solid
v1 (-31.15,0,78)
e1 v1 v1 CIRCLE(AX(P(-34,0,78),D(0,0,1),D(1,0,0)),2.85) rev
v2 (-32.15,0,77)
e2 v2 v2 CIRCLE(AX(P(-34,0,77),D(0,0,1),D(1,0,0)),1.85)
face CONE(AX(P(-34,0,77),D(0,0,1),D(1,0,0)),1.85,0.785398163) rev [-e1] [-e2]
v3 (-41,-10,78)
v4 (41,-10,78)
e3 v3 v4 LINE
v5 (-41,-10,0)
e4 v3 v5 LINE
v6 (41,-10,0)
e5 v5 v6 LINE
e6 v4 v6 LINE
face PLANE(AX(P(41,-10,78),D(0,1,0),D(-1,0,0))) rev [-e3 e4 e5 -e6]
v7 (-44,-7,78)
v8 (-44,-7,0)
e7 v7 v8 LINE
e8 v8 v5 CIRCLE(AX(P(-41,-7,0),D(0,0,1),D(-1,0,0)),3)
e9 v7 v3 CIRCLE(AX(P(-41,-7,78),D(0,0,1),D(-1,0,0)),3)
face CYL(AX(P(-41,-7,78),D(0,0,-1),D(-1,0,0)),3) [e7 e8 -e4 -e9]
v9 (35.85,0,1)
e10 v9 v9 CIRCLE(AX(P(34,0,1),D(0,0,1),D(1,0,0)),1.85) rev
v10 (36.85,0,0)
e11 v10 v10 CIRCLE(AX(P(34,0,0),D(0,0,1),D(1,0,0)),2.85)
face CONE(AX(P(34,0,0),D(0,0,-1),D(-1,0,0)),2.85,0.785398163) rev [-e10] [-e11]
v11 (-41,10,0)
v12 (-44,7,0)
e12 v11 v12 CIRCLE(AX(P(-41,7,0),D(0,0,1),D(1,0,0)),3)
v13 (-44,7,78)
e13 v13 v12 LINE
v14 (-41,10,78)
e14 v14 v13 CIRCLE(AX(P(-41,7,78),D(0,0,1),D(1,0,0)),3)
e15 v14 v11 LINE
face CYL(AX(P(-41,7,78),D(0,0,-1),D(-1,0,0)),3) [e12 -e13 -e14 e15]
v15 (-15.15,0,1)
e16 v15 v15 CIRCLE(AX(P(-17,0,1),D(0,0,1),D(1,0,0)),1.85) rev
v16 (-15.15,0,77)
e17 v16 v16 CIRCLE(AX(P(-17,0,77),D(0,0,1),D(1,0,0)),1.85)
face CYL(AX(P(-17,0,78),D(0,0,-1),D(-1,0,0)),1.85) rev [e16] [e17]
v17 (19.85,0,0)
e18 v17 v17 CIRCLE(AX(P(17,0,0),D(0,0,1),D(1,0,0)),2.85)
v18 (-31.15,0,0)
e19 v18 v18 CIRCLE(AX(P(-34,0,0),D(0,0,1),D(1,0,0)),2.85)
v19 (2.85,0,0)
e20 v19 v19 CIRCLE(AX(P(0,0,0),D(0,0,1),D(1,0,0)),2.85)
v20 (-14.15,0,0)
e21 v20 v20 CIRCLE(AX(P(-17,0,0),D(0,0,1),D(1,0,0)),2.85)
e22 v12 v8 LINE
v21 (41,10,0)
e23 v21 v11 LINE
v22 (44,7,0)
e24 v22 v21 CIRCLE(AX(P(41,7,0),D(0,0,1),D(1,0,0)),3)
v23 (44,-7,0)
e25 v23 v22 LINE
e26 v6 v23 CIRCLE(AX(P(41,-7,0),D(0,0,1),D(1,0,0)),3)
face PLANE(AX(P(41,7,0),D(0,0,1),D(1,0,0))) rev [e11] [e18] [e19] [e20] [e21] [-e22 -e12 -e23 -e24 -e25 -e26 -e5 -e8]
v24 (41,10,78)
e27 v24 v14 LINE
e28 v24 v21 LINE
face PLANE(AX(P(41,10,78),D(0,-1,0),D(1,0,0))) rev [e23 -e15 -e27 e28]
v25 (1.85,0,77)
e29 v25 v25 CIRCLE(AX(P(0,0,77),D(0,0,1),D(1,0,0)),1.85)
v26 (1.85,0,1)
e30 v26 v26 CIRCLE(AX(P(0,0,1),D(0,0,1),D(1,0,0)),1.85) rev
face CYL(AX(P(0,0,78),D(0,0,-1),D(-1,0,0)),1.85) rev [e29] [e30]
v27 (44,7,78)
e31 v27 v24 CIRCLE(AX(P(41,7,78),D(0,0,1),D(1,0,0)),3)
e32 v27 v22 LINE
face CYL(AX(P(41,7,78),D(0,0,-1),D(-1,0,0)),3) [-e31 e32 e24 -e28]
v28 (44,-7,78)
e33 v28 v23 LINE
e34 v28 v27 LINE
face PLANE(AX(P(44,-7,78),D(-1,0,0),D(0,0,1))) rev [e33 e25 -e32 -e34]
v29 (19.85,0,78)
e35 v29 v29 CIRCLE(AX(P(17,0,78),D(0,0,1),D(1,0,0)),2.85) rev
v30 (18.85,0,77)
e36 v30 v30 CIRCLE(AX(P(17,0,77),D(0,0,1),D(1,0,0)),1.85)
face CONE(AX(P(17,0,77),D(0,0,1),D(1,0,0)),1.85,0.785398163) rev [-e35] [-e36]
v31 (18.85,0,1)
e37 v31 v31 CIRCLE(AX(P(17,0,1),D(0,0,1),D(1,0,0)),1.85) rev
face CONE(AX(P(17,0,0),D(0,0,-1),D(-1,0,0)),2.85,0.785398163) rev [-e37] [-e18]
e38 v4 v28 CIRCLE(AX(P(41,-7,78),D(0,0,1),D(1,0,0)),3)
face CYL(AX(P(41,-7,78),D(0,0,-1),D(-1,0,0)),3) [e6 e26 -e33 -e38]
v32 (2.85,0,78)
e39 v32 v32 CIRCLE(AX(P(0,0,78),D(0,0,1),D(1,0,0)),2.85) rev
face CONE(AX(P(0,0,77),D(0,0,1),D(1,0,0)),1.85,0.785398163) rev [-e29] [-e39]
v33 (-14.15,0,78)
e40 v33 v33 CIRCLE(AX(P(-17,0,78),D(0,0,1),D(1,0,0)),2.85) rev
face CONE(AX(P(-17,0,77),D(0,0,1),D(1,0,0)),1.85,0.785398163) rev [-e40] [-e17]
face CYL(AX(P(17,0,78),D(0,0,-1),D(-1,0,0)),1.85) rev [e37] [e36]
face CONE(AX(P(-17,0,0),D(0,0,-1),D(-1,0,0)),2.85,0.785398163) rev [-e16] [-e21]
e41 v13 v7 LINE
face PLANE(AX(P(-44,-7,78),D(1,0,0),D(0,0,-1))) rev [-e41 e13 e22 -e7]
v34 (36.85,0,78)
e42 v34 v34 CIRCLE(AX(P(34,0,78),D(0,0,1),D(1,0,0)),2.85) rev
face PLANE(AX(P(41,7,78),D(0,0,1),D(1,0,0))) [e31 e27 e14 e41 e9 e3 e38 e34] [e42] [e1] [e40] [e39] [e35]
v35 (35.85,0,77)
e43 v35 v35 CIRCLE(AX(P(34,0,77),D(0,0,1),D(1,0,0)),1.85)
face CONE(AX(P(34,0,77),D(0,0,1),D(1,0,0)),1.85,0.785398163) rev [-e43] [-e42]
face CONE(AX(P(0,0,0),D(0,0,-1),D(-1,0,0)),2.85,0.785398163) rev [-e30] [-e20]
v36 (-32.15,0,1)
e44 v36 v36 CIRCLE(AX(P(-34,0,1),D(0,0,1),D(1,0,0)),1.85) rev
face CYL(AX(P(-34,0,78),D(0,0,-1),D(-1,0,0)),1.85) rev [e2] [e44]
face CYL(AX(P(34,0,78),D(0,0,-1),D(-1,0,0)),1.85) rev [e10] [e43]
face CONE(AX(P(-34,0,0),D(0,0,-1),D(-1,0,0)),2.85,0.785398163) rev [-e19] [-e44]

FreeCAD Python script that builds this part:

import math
import FreeCAD as App
import Part
import Sketcher

V = App.Vector


def edges_at(feature, points):
    """Names of the edges that pass closest to the given points."""
    edges = feature.Shape.Edges
    near = lambda p: min(range(len(edges)), key=lambda i: edges[i].distToShape(Part.Vertex(*p))[0])
    return sorted({f"Edge{near(p) + 1}" for p in points})

doc = App.newDocument("Part")
body = doc.addObject("PartDesign::Body", "Body")

sketch1 = body.newObject("Sketcher::SketchObject", "Sketch")
sketch1.AttachmentSupport = (doc.getObject("XY_Plane"), [""])
sketch1.MapMode = "FlatFace"
sketch1.addGeometry(Part.LineSegment(V(-41, -10, 0), V(41, -10, 0)), False)
sketch1.addGeometry(Part.ArcOfCircle(Part.Circle(V(41, -7, 0), V(0, 0, 1), 3), math.radians(-90), math.radians(0)), False)
sketch1.addGeometry(Part.LineSegment(V(44, -7, 0), V(44, 7, 0)), False)
sketch1.addGeometry(Part.ArcOfCircle(Part.Circle(V(41, 7, 0), V(0, 0, 1), 3), math.radians(0), math.radians(90)), False)
sketch1.addGeometry(Part.LineSegment(V(41, 10, 0), V(-41, 10, 0)), False)
sketch1.addGeometry(Part.ArcOfCircle(Part.Circle(V(-41, 7, 0), V(0, 0, 1), 3), math.radians(90), math.radians(180)), False)
sketch1.addGeometry(Part.LineSegment(V(-44, 7, 0), V(-44, -7, 0)), False)
sketch1.addGeometry(Part.ArcOfCircle(Part.Circle(V(-41, -7, 0), V(0, 0, 1), 3), math.radians(180), math.radians(270)), False)
sketch1.addGeometry(Part.Circle(V(34, 0, 0), V(0, 0, 1), 1.85), False)
sketch1.addGeometry(Part.Circle(V(17, 0, 0), V(0, 0, 1), 1.85), False)
sketch1.addGeometry(Part.Circle(V(0, 0, 0), V(0, 0, 1), 1.85), False)
sketch1.addGeometry(Part.Circle(V(-17, 0, 0), V(0, 0, 1), 1.85), False)
sketch1.addGeometry(Part.Circle(V(-34, 0, 0), V(0, 0, 1), 1.85), False)
sketch1.addConstraint(Sketcher.Constraint("Tangent", 0, 2, 1, 1))
sketch1.addConstraint(Sketcher.Constraint("Tangent", 1, 2, 2, 1))
sketch1.addConstraint(Sketcher.Constraint("Tangent", 2, 2, 3, 1))
sketch1.addConstraint(Sketcher.Constraint("Tangent", 3, 2, 4, 1))
sketch1.addConstraint(Sketcher.Constraint("Tangent", 4, 2, 5, 1))
sketch1.addConstraint(Sketcher.Constraint("Tangent", 5, 2, 6, 1))
sketch1.addConstraint(Sketcher.Constraint("Tangent", 6, 2, 7, 1))
sketch1.addConstraint(Sketcher.Constraint("Tangent", 7, 2, 0, 1))
sketch1.addConstraint(Sketcher.Constraint("Horizontal", 0))
sketch1.addConstraint(Sketcher.Constraint("Vertical", 2))
sketch1.addConstraint(Sketcher.Constraint("Horizontal", 4))
sketch1.addConstraint(Sketcher.Constraint("Vertical", 6))
sketch1.addConstraint(Sketcher.Constraint("Coincident", 10, 3, -1, 1))
sketch1.addConstraint(Sketcher.Constraint("Equal", 1, 3))
sketch1.addConstraint(Sketcher.Constraint("Equal", 3, 5))
sketch1.addConstraint(Sketcher.Constraint("Equal", 5, 7))
sketch1.addConstraint(Sketcher.Constraint("Equal", 8, 9))
sketch1.addConstraint(Sketcher.Constraint("Equal", 9, 10))
sketch1.addConstraint(Sketcher.Constraint("Equal", 10, 11))
sketch1.addConstraint(Sketcher.Constraint("Equal", 11, 12))
sketch1.addConstraint(Sketcher.Constraint("Symmetric", 1, 3, 5, 3, -1, 1))
sketch1.addConstraint(Sketcher.Constraint("Symmetric", 9, 3, 11, 3, -1, 1))
sketch1.addConstraint(Sketcher.Constraint("Symmetric", 8, 3, 12, 3, -1, 1))
sketch1.addConstraint(Sketcher.Constraint("PointOnObject", 8, 3, -1))
sketch1.addConstraint(Sketcher.Constraint("PointOnObject", 9, 3, -1))
sketch1.addConstraint(Sketcher.Constraint("Radius", 1, 3.0))
sketch1.addConstraint(Sketcher.Constraint("Diameter", 8, 3.7))
sketch1.addConstraint(Sketcher.Constraint("DistanceX", 0, 1, 0, 2, 82.0))
sketch1.addConstraint(Sketcher.Constraint("DistanceY", 2, 1, 2, 2, 14.0))
sketch1.addConstraint(Sketcher.Constraint("DistanceX", -1, 1, 8, 3, 34.0))
sketch1.addConstraint(Sketcher.Constraint("DistanceX", -1, 1, 9, 3, 17.0))
pad1 = body.newObject("PartDesign::Pad", "Pad")
pad1.Profile = sketch1
pad1.Length = 78
doc.recompute()

chamfer = body.newObject("PartDesign::Chamfer", "Chamfer")
chamfer.Base = (pad1, edges_at(pad1, [
    (-35.85, 0, 0),
    (-35.85, 0, 78),
    (-18.85, 0, 0),
    (-18.85, 0, 78),
    (-1.85, 0, 0),
    (-1.85, 0, 78),
    (15.15, 0, 0),
    (15.15, 0, 78),
    (32.15, 0, 0),
    (32.15, 0, 78),
]))
chamfer.Size = 1

doc.recompute()
